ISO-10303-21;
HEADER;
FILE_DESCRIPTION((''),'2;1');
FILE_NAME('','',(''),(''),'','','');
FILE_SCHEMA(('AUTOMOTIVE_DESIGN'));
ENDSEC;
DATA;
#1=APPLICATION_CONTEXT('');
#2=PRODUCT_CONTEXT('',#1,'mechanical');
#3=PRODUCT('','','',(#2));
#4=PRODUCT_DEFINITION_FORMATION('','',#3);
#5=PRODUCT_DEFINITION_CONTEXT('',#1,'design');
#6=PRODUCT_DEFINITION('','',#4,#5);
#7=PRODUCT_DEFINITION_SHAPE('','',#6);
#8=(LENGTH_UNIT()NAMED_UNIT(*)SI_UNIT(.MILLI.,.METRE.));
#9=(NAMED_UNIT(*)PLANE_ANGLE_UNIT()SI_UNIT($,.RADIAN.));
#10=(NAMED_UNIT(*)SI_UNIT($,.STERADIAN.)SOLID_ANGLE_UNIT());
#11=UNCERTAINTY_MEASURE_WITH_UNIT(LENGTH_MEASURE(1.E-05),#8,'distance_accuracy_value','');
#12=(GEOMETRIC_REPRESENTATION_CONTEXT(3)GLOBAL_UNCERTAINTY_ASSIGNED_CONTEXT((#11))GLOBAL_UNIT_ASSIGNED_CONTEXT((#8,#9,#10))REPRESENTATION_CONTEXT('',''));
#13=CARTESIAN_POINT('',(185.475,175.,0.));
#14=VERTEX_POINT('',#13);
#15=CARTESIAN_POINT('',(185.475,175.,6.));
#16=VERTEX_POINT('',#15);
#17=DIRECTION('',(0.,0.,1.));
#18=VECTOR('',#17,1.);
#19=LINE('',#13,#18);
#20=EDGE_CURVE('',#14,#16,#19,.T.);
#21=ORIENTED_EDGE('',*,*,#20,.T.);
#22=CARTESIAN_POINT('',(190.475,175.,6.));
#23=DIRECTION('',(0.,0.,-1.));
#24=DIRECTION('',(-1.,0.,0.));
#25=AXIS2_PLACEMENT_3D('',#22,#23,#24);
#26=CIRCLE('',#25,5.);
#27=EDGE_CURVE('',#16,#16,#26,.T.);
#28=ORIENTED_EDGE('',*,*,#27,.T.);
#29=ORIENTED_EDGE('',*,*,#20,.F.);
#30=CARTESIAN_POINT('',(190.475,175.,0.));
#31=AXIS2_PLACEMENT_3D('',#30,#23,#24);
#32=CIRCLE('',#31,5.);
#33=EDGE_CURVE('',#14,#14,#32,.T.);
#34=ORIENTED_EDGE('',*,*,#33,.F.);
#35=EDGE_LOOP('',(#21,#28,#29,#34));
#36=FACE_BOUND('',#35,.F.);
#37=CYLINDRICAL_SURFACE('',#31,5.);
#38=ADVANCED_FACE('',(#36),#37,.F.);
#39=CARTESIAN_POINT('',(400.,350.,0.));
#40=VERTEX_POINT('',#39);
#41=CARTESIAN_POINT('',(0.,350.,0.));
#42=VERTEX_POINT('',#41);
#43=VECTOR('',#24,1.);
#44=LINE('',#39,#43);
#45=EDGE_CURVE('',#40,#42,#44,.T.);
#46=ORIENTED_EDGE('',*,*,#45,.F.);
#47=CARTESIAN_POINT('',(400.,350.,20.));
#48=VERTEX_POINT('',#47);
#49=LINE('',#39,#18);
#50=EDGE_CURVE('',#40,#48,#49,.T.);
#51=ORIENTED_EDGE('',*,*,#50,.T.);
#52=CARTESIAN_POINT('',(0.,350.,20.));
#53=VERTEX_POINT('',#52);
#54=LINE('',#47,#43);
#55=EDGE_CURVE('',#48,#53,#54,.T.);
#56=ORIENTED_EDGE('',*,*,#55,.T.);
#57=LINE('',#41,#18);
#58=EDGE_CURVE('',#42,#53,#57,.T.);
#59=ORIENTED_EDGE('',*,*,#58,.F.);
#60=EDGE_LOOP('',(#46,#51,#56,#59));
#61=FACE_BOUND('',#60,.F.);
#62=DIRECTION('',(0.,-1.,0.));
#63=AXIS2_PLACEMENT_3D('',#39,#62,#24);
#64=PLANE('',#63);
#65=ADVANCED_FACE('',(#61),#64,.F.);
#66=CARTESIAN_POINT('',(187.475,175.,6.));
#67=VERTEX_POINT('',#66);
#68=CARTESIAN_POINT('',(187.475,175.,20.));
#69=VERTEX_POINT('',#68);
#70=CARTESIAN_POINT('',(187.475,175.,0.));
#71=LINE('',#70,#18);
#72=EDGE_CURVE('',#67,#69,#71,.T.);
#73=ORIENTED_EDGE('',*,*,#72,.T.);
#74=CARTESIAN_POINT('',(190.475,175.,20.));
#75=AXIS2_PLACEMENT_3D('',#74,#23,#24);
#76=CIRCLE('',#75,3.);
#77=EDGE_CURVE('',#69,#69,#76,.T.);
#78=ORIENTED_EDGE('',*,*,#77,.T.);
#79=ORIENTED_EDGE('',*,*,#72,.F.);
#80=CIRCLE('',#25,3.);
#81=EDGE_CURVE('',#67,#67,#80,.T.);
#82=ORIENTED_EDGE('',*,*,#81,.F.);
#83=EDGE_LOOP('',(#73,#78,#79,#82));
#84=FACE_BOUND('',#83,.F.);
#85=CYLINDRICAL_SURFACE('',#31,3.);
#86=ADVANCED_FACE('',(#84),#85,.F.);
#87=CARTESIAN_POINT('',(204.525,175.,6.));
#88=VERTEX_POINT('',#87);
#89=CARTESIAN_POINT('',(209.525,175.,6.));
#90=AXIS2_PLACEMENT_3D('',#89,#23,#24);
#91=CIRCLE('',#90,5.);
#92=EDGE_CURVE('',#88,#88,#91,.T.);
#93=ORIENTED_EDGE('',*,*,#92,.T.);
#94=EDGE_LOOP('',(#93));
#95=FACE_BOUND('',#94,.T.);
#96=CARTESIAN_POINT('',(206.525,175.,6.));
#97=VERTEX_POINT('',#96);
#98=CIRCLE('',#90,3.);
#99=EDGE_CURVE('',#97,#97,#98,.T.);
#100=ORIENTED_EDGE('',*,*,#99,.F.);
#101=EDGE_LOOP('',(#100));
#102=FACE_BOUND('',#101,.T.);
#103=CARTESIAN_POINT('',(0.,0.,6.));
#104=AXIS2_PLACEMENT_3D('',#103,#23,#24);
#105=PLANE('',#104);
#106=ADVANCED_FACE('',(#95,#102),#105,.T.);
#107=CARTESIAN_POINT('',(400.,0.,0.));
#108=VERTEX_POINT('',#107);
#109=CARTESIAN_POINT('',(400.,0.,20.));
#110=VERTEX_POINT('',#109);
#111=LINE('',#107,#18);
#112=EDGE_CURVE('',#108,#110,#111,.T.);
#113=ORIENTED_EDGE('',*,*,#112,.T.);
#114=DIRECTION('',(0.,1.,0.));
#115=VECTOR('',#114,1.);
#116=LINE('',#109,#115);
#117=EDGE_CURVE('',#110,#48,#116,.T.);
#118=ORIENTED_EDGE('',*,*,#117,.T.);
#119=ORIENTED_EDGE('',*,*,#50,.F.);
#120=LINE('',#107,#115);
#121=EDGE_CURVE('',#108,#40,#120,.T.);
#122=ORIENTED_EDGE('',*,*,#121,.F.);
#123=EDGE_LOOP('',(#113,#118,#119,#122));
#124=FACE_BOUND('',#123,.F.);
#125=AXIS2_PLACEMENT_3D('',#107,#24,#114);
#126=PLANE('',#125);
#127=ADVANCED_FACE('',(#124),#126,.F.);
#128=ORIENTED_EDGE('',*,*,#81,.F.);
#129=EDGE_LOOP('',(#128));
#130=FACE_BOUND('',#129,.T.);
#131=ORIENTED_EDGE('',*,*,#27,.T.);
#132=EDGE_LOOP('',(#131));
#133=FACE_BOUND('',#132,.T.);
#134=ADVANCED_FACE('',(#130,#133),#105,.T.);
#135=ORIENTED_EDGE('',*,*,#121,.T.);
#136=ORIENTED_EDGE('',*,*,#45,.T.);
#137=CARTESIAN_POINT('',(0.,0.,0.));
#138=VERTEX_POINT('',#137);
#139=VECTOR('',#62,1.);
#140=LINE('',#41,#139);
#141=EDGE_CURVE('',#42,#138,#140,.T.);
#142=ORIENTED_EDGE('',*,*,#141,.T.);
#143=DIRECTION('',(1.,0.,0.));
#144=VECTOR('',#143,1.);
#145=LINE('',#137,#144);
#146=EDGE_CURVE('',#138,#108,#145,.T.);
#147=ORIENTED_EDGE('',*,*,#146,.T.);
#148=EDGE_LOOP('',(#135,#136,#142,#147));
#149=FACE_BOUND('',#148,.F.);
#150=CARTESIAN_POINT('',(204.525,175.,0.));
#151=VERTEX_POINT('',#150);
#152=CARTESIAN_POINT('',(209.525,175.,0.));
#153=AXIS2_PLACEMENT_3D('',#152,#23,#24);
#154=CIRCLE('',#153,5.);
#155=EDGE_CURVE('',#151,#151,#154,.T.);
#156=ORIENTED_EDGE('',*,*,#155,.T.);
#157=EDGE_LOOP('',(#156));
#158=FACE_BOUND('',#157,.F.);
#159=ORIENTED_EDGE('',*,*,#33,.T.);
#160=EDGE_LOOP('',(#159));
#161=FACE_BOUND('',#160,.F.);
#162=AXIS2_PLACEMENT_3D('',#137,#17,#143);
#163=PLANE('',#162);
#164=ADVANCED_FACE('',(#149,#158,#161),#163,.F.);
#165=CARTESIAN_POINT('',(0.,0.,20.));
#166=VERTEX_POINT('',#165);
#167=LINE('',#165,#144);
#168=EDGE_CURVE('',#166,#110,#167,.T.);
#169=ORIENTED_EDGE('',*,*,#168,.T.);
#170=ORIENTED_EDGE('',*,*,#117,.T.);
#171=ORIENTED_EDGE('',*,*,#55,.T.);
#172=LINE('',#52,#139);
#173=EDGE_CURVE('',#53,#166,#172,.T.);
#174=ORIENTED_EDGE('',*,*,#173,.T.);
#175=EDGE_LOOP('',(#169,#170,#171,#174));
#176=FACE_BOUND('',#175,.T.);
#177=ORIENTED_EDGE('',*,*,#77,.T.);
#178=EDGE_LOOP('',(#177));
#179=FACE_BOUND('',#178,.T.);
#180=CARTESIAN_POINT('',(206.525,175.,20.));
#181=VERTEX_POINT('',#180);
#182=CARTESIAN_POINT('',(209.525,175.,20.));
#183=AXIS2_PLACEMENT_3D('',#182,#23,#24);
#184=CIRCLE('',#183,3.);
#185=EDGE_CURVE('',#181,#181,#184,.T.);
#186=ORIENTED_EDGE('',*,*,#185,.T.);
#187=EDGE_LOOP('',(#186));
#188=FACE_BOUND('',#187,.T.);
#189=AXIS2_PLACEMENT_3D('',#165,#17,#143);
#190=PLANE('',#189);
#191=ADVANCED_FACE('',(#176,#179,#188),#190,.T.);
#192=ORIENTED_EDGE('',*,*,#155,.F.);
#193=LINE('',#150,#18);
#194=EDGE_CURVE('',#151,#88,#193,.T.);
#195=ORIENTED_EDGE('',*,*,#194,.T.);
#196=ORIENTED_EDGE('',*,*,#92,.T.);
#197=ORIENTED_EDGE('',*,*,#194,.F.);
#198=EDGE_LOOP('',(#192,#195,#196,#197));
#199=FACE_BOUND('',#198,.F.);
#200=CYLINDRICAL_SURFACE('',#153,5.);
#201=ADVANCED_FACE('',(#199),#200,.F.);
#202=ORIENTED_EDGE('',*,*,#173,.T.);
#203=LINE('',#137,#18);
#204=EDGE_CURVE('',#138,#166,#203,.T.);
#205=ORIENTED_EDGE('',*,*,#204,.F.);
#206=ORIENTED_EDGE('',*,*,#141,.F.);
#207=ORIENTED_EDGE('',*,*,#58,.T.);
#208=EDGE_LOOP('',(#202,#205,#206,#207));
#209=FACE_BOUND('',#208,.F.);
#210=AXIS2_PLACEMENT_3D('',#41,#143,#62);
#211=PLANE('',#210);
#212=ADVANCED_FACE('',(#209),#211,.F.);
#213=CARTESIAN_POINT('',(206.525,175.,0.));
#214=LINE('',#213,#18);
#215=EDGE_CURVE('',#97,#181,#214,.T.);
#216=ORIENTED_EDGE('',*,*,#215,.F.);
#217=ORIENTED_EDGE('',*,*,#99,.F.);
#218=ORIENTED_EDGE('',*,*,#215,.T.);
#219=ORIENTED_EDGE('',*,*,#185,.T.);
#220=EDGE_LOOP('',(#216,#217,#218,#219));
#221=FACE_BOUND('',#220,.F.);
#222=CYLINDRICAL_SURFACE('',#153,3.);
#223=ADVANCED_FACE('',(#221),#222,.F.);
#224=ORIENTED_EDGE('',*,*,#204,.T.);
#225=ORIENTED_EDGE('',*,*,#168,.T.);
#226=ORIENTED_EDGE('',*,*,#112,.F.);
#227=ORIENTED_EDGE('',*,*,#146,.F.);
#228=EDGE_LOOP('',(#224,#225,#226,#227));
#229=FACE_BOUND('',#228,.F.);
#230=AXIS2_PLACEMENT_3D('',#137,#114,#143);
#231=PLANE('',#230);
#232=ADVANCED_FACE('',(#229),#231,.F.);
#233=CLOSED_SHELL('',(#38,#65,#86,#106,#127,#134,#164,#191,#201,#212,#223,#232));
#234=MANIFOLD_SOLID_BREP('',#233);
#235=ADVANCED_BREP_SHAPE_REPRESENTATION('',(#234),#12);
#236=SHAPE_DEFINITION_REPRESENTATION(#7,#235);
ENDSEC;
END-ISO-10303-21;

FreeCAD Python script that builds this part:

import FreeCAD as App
import Part
import Sketcher
from FreeCAD import Vector
Q = App.Units.Quantity

doc = App.newDocument("Part")
body = doc.addObject("PartDesign::Body", "Body")

sketch1 = body.newObject("Sketcher::SketchObject", "Sketch")
sketch1.AttachmentSupport = (doc.getObject("XY_Plane"), [""])
sketch1.MapMode = "FlatFace"
sketch1.addGeometry(Part.LineSegment(Vector(0, 350, 0), Vector(0, 0, 0)), False)
sketch1.addGeometry(Part.LineSegment(Vector(0, 0, 0), Vector(400, 0, 0)), False)
sketch1.addGeometry(Part.LineSegment(Vector(400, 0, 0), Vector(400, 350, 0)), False)
sketch1.addGeometry(Part.LineSegment(Vector(400, 350, 0), Vector(0, 350, 0)), False)
sketch1.addConstraint(Sketcher.Constraint("Coincident", 0, 2, 1, 1))
sketch1.addConstraint(Sketcher.Constraint("Coincident", 1, 2, 2, 1))
sketch1.addConstraint(Sketcher.Constraint("Coincident", 2, 2, 3, 1))
sketch1.addConstraint(Sketcher.Constraint("Coincident", 3, 2, 0, 1))
sketch1.addConstraint(Sketcher.Constraint("Vertical", 0))
sketch1.addConstraint(Sketcher.Constraint("Horizontal", 1))
sketch1.addConstraint(Sketcher.Constraint("Vertical", 2))
sketch1.addConstraint(Sketcher.Constraint("Horizontal", 3))
sketch1.addConstraint(Sketcher.Constraint("Coincident", 0, 2, -1, 1))
sketch1.addConstraint(Sketcher.Constraint("DistanceX", 1, 1, 1, 2, Q("400 mm")))
sketch1.addConstraint(Sketcher.Constraint("DistanceY", 0, 2, 0, 1, Q("350 mm")))
pad1 = body.newObject("PartDesign::Pad", "Pad")
pad1.Profile = sketch1
pad1.Length = 20

sketch2 = body.newObject("Sketcher::SketchObject", "Sketch001")
sketch2.AttachmentSupport = (doc.getObject("XY_Plane"), [""])
sketch2.MapMode = "FlatFace"
sketch2.addGeometry(Part.Circle(Vector(190.5, 175, 0), Vector(0, 0, 1), 3), False)
sketch2.addGeometry(Part.Circle(Vector(209.5, 175, 0), Vector(0, 0, 1), 3), False)
sketch2.addConstraint(Sketcher.Constraint("Equal", 0, 1))
sketch2.addConstraint(Sketcher.Constraint("Horizontal", 0, 3, 1, 3))
sketch2.addConstraint(Sketcher.Constraint("Diameter", 0, Q("6 mm")))
sketch2.addConstraint(Sketcher.Constraint("DistanceY", -1, 1, 0, 3, Q("175 mm")))
sketch2.addConstraint(Sketcher.Constraint("DistanceX", 0, 3, 1, 3, Q("19.05 mm")))
sketch2.addConstraint(Sketcher.Constraint("DistanceX", -1, 1, 0, 3, Q("190.475 mm")))
pocket1 = body.newObject("PartDesign::Pocket", "Pocket")
pocket1.Profile = sketch2
pocket1.Length = 20
pocket1.Reversed = True

sketch3 = body.newObject("Sketcher::SketchObject", "Sketch002")
sketch3.AttachmentSupport = (doc.getObject("XY_Plane"), [""])
sketch3.MapMode = "FlatFace"
sketch3.addGeometry(Part.Circle(Vector(190, 175, 0), Vector(0, 0, 1), 5), False)
sketch3.addGeometry(Part.Circle(Vector(210, 175, 0), Vector(0, 0, 1), 5), False)
sketch3.addConstraint(Sketcher.Constraint("Equal", 0, 1))
sketch3.addConstraint(Sketcher.Constraint("Horizontal", 0, 3, 1, 3))
sketch3.addConstraint(Sketcher.Constraint("Diameter", 0, Q("10 mm")))
sketch3.addConstraint(Sketcher.Constraint("DistanceY", -1, 1, 0, 3, Q("175 mm")))
sketch3.addConstraint(Sketcher.Constraint("DistanceX", 0, 3, 1, 3, Q("19.05 mm")))
sketch3.addConstraint(Sketcher.Constraint("DistanceX", -1, 1, 0, 3, Q("190.475 mm")))
pocket2 = body.newObject("PartDesign::Pocket", "Pocket001")
pocket2.Profile = sketch3
pocket2.Length = 6
pocket2.Reversed = True

doc.recompute()
